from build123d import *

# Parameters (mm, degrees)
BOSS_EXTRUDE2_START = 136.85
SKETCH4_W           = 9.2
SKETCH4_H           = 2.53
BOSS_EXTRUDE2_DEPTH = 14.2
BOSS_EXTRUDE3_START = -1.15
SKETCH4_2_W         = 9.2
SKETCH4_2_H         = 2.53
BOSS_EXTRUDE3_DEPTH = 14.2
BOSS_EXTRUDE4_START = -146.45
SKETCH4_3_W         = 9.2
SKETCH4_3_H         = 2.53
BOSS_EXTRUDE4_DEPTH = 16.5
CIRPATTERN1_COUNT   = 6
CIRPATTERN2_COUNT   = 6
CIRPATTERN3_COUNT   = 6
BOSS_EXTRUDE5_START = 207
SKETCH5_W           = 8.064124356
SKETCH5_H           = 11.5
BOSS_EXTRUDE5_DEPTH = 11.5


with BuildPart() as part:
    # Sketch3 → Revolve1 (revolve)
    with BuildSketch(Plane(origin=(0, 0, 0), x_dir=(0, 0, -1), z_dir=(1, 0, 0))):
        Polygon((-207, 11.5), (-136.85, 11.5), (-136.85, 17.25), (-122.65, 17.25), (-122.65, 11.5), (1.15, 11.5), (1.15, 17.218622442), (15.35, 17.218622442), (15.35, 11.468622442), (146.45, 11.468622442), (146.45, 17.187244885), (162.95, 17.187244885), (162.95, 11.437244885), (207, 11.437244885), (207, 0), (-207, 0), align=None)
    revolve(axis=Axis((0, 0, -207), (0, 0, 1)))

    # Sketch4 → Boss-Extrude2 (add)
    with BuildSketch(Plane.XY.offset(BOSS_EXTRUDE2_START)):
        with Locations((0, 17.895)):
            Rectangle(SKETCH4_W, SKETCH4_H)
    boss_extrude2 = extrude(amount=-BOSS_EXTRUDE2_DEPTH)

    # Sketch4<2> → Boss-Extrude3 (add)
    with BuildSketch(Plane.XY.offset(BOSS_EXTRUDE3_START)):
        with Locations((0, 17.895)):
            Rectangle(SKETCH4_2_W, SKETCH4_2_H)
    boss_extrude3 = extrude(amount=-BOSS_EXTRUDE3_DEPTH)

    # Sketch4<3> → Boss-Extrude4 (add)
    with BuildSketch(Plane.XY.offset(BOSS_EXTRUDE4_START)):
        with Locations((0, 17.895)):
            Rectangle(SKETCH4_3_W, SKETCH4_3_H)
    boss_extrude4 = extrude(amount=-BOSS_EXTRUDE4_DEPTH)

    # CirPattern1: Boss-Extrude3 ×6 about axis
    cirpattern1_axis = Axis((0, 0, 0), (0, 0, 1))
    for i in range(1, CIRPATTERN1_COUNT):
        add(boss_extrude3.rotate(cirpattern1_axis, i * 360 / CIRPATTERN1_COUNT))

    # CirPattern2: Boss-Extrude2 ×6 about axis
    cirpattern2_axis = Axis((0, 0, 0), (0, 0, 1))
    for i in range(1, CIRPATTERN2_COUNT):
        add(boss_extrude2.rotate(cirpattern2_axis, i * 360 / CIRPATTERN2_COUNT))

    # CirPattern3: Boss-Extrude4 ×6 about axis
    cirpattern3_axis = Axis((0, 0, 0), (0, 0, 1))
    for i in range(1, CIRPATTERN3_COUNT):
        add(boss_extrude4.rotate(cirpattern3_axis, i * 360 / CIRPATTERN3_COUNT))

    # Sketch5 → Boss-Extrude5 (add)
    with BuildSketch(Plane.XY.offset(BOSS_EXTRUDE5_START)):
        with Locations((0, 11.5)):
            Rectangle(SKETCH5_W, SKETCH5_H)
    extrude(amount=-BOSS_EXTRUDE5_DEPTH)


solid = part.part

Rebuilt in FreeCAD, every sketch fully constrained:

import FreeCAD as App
import Part
import Sketcher
from FreeCAD import Vector
Q = App.Units.Quantity

doc = App.newDocument("Part")
params = doc.addObject("Spreadsheet::Sheet", "Params")
for row, (alias, value) in enumerate([
    ("sketch1_height", "414 mm"),
    ("sketch1_width", "11.5 mm"),
    ("sketch1_height2", "16.5 mm"),
    ("sketch1_height3", "131.1 mm"),
    ("sketch1_height4", "14.2 mm"),
    ("revolution_angle", "360 deg"),
    ("sketch2_width", "9.2 mm"),
    ("sketch2_height", "2.53 mm"),
    ("pad1_length", "14.2 mm"),
    ("sketch3_width", "9.2 mm"),
    ("sketch3_height", "2.53 mm"),
    ("pad2_length", "14.2 mm"),
    ("sketch4_width", "9.2 mm"),
    ("sketch4_height", "2.53 mm"),
    ("pad3_length", "16.5 mm"),
    ("sketch5_height", "11.5 mm"),
    ("pad4_length", "11.5 mm"),
], start=1):
    params.set(f"A{row}", alias)
    params.set(f"B{row}", "=" + value)
    params.setAlias(f"B{row}", alias)

body = doc.addObject("PartDesign::Body", "Body")

sketch1 = body.newObject("Sketcher::SketchObject", "Sketch")
sketch1.AttachmentSupport = (doc.getObject("YZ_Plane"), [""])
sketch1.MapMode = "FlatFace"
sketch1.addGeometry(Part.LineSegment(Vector(12, 137, 0), Vector(12, 207, 0)), False)
sketch1.addGeometry(Part.LineSegment(Vector(12, 207, 0), Vector(0, 207, 0)), False)
sketch1.addGeometry(Part.LineSegment(Vector(0, 207, 0), Vector(0, -207, 0)), False)
sketch1.addGeometry(Part.LineSegment(Vector(0, -207, 0), Vector(11, -207, 0)), False)
sketch1.addGeometry(Part.LineSegment(Vector(11, -207, 0), Vector(11, -163, 0)), False)
sketch1.addGeometry(Part.LineSegment(Vector(11, -163, 0), Vector(17, -163, 0)), False)
sketch1.addGeometry(Part.LineSegment(Vector(17, -163, 0), Vector(17, -146, 0)), False)
sketch1.addGeometry(Part.LineSegment(Vector(17, -146, 0), Vector(11, -146, 0)), False)
sketch1.addGeometry(Part.LineSegment(Vector(11, -146, 0), Vector(11, -15, 0)), False)
sketch1.addGeometry(Part.LineSegment(Vector(11, -15, 0), Vector(17, -15, 0)), False)
sketch1.addGeometry(Part.LineSegment(Vector(17, -15, 0), Vector(17, -1, 0)), False)
sketch1.addGeometry(Part.LineSegment(Vector(17, -1, 0), Vector(12, -1, 0)), False)
sketch1.addGeometry(Part.LineSegment(Vector(12, -1, 0), Vector(12, 123, 0)), False)
sketch1.addGeometry(Part.LineSegment(Vector(12, 123, 0), Vector(17, 123, 0)), False)
sketch1.addGeometry(Part.LineSegment(Vector(17, 123, 0), Vector(17, 137, 0)), False)
sketch1.addGeometry(Part.LineSegment(Vector(17, 137, 0), Vector(12, 137, 0)), False)
sketch1.addConstraint(Sketcher.Constraint("Coincident", 0, 2, 1, 1))
sketch1.addConstraint(Sketcher.Constraint("Coincident", 1, 2, 2, 1))
sketch1.addConstraint(Sketcher.Constraint("Coincident", 2, 2, 3, 1))
sketch1.addConstraint(Sketcher.Constraint("Coincident", 3, 2, 4, 1))
sketch1.addConstraint(Sketcher.Constraint("Coincident", 4, 2, 5, 1))
sketch1.addConstraint(Sketcher.Constraint("Coincident", 5, 2, 6, 1))
sketch1.addConstraint(Sketcher.Constraint("Coincident", 6, 2, 7, 1))
sketch1.addConstraint(Sketcher.Constraint("Coincident", 7, 2, 8, 1))
sketch1.addConstraint(Sketcher.Constraint("Coincident", 8, 2, 9, 1))
sketch1.addConstraint(Sketcher.Constraint("Coincident", 9, 2, 10, 1))
sketch1.addConstraint(Sketcher.Constraint("Coincident", 10, 2, 11, 1))
sketch1.addConstraint(Sketcher.Constraint("Coincident", 11, 2, 12, 1))
sketch1.addConstraint(Sketcher.Constraint("Coincident", 12, 2, 13, 1))
sketch1.addConstraint(Sketcher.Constraint("Coincident", 13, 2, 14, 1))
sketch1.addConstraint(Sketcher.Constraint("Coincident", 14, 2, 15, 1))
sketch1.addConstraint(Sketcher.Constraint("Coincident", 15, 2, 0, 1))
sketch1.addConstraint(Sketcher.Constraint("Vertical", 0))
sketch1.addConstraint(Sketcher.Constraint("Horizontal", 1))
sketch1.addConstraint(Sketcher.Constraint("Vertical", 2))
sketch1.addConstraint(Sketcher.Constraint("Horizontal", 3))
sketch1.addConstraint(Sketcher.Constraint("Vertical", 4))
sketch1.addConstraint(Sketcher.Constraint("Horizontal", 5))
sketch1.addConstraint(Sketcher.Constraint("Vertical", 6))
sketch1.addConstraint(Sketcher.Constraint("Horizontal", 7))
sketch1.addConstraint(Sketcher.Constraint("Vertical", 8))
sketch1.addConstraint(Sketcher.Constraint("Horizontal", 9))
sketch1.addConstraint(Sketcher.Constraint("Vertical", 10))
sketch1.addConstraint(Sketcher.Constraint("Horizontal", 11))
sketch1.addConstraint(Sketcher.Constraint("Vertical", 12))
sketch1.addConstraint(Sketcher.Constraint("Horizontal", 13))
sketch1.addConstraint(Sketcher.Constraint("Vertical", 14))
sketch1.addConstraint(Sketcher.Constraint("Horizontal", 15))
sketch1.addConstraint(Sketcher.Constraint("Symmetric", 1, 2, 2, 2, -1, 1))
sketch1.addConstraint(Sketcher.Constraint("Vertical", 0, 2, 11, 2))
sketch1.addConstraint(Sketcher.Constraint("Equal", 5, 9))
sketch1.addConstraint(Sketcher.Constraint("Equal", 7, 11))
sketch1.addConstraint(Sketcher.Constraint("Equal", 9, 13))
sketch1.addConstraint(Sketcher.Constraint("Equal", 10, 14))
sketch1.addConstraint(Sketcher.Constraint("DistanceY", 2, 2, 2, 1, Q("414 mm")))
sketch1.addConstraint(Sketcher.Constraint("DistanceX", 1, 2, 1, 1, Q("11.5 mm")))
sketch1.addConstraint(Sketcher.Constraint("DistanceY", 6, 1, 6, 2, Q("16.5 mm")))
sketch1.addConstraint(Sketcher.Constraint("DistanceY", 8, 1, 8, 2, Q("131.1 mm")))
sketch1.addConstraint(Sketcher.Constraint("DistanceY", 10, 1, 10, 2, Q("14.2 mm")))
sketch1.addConstraint(Sketcher.Constraint("DistanceY", 12, 1, 12, 2, Q("123.8 mm")))
sketch1.addConstraint(Sketcher.Constraint("DistanceX", 5, 1, 5, 2, Q("5.75 mm")))
sketch1.addConstraint(Sketcher.Constraint("DistanceY", 0, 1, 0, 2, Q("70.15 mm")))
sketch1.addConstraint(Sketcher.Constraint("DistanceX", 3, 1, 3, 2, Q("11.437245 mm")))
sketch1.setExpression("Constraints[38]", "Params.sketch1_height")
sketch1.setExpression("Constraints[39]", "Params.sketch1_width")
sketch1.setExpression("Constraints[40]", "Params.sketch1_height2")
sketch1.setExpression("Constraints[41]", "Params.sketch1_height3")
sketch1.setExpression("Constraints[42]", "Params.sketch1_height4")
revolution = body.newObject("PartDesign::Revolution", "Revolution")
revolution.Profile = sketch1
revolution.ReferenceAxis = (sketch1, ["V_Axis"])
revolution.setExpression("Angle", "Params.revolution_angle")

sketch2 = body.newObject("Sketcher::SketchObject", "Sketch001")
sketch2.AttachmentSupport = (doc.getObject("XY_Plane"), [""])
sketch2.MapMode = "FlatFace"
sketch2.AttachmentOffset = App.Placement(Vector(0, 0, 136.85), App.Rotation())
sketch2.addGeometry(Part.LineSegment(Vector(-4.6, 19.2, 0), Vector(-4.6, 16.6, 0)), False)
sketch2.addGeometry(Part.LineSegment(Vector(-4.6, 16.6, 0), Vector(4.6, 16.6, 0)), False)
sketch2.addGeometry(Part.LineSegment(Vector(4.6, 16.6, 0), Vector(4.6, 19.2, 0)), False)
sketch2.addGeometry(Part.LineSegment(Vector(4.6, 19.2, 0), Vector(-4.6, 19.2, 0)), False)
sketch2.addConstraint(Sketcher.Constraint("Coincident", 0, 2, 1, 1))
sketch2.addConstraint(Sketcher.Constraint("Coincident", 1, 2, 2, 1))
sketch2.addConstraint(Sketcher.Constraint("Coincident", 2, 2, 3, 1))
sketch2.addConstraint(Sketcher.Constraint("Coincident", 3, 2, 0, 1))
sketch2.addConstraint(Sketcher.Constraint("Vertical", 0))
sketch2.addConstraint(Sketcher.Constraint("Horizontal", 1))
sketch2.addConstraint(Sketcher.Constraint("Vertical", 2))
sketch2.addConstraint(Sketcher.Constraint("Horizontal", 3))
sketch2.addConstraint(Sketcher.Constraint("DistanceX", 1, 1, 1, 2, Q("9.2 mm")))
sketch2.addConstraint(Sketcher.Constraint("DistanceY", 0, 2, 0, 1, Q("2.53 mm")))
sketch2.addConstraint(Sketcher.Constraint("DistanceX", 0, 2, -1, 1, Q("4.6 mm")))
sketch2.addConstraint(Sketcher.Constraint("DistanceY", -1, 1, 0, 2, Q("16.63 mm")))
sketch2.setExpression("Constraints[8]", "Params.sketch2_width")
sketch2.setExpression("Constraints[9]", "Params.sketch2_height")
pad1 = body.newObject("PartDesign::Pad", "Pad")
pad1.Profile = sketch2
pad1.setExpression("Length", "Params.pad1_length")
pad1.Reversed = True

sketch3 = body.newObject("Sketcher::SketchObject", "Sketch002")
sketch3.AttachmentSupport = (doc.getObject("XY_Plane"), [""])
sketch3.MapMode = "FlatFace"
sketch3.AttachmentOffset = App.Placement(Vector(0, 0, -1.15), App.Rotation())
sketch3.addGeometry(Part.LineSegment(Vector(-4.6, 19.2, 0), Vector(-4.6, 16.6, 0)), False)
sketch3.addGeometry(Part.LineSegment(Vector(-4.6, 16.6, 0), Vector(4.6, 16.6, 0)), False)
sketch3.addGeometry(Part.LineSegment(Vector(4.6, 16.6, 0), Vector(4.6, 19.2, 0)), False)
sketch3.addGeometry(Part.LineSegment(Vector(4.6, 19.2, 0), Vector(-4.6, 19.2, 0)), False)
sketch3.addConstraint(Sketcher.Constraint("Coincident", 0, 2, 1, 1))
sketch3.addConstraint(Sketcher.Constraint("Coincident", 1, 2, 2, 1))
sketch3.addConstraint(Sketcher.Constraint("Coincident", 2, 2, 3, 1))
sketch3.addConstraint(Sketcher.Constraint("Coincident", 3, 2, 0, 1))
sketch3.addConstraint(Sketcher.Constraint("Vertical", 0))
sketch3.addConstraint(Sketcher.Constraint("Horizontal", 1))
sketch3.addConstraint(Sketcher.Constraint("Vertical", 2))
sketch3.addConstraint(Sketcher.Constraint("Horizontal", 3))
sketch3.addConstraint(Sketcher.Constraint("DistanceX", 1, 1, 1, 2, Q("9.2 mm")))
sketch3.addConstraint(Sketcher.Constraint("DistanceY", 0, 2, 0, 1, Q("2.53 mm")))
sketch3.addConstraint(Sketcher.Constraint("DistanceX", 0, 2, -1, 1, Q("4.6 mm")))
sketch3.addConstraint(Sketcher.Constraint("DistanceY", -1, 1, 0, 2, Q("16.63 mm")))
sketch3.setExpression("Constraints[8]", "Params.sketch3_width")
sketch3.setExpression("Constraints[9]", "Params.sketch3_height")
pad2 = body.newObject("PartDesign::Pad", "Pad001")
pad2.Profile = sketch3
pad2.setExpression("Length", "Params.pad2_length")
pad2.Reversed = True

sketch4 = body.newObject("Sketcher::SketchObject", "Sketch003")
sketch4.AttachmentSupport = (doc.getObject("XY_Plane"), [""])
sketch4.MapMode = "FlatFace"
sketch4.AttachmentOffset = App.Placement(Vector(0, 0, -146.45), App.Rotation())
sketch4.addGeometry(Part.LineSegment(Vector(-4.6, 19.2, 0), Vector(-4.6, 16.6, 0)), False)
sketch4.addGeometry(Part.LineSegment(Vector(-4.6, 16.6, 0), Vector(4.6, 16.6, 0)), False)
sketch4.addGeometry(Part.LineSegment(Vector(4.6, 16.6, 0), Vector(4.6, 19.2, 0)), False)
sketch4.addGeometry(Part.LineSegment(Vector(4.6, 19.2, 0), Vector(-4.6, 19.2, 0)), False)
sketch4.addConstraint(Sketcher.Constraint("Coincident", 0, 2, 1, 1))
sketch4.addConstraint(Sketcher.Constraint("Coincident", 1, 2, 2, 1))
sketch4.addConstraint(Sketcher.Constraint("Coincident", 2, 2, 3, 1))
sketch4.addConstraint(Sketcher.Constraint("Coincident", 3, 2, 0, 1))
sketch4.addConstraint(Sketcher.Constraint("Vertical", 0))
sketch4.addConstraint(Sketcher.Constraint("Horizontal", 1))
sketch4.addConstraint(Sketcher.Constraint("Vertical", 2))
sketch4.addConstraint(Sketcher.Constraint("Horizontal", 3))
sketch4.addConstraint(Sketcher.Constraint("DistanceX", 1, 1, 1, 2, Q("9.2 mm")))
sketch4.addConstraint(Sketcher.Constraint("DistanceY", 0, 2, 0, 1, Q("2.53 mm")))
sketch4.addConstraint(Sketcher.Constraint("DistanceX", 0, 2, -1, 1, Q("4.6 mm")))
sketch4.addConstraint(Sketcher.Constraint("DistanceY", -1, 1, 0, 2, Q("16.63 mm")))
sketch4.setExpression("Constraints[8]", "Params.sketch4_width")
sketch4.setExpression("Constraints[9]", "Params.sketch4_height")
pad3 = body.newObject("PartDesign::Pad", "Pad002")
pad3.Profile = sketch4
pad3.setExpression("Length", "Params.pad3_length")
pad3.Reversed = True
doc.recompute()

polarpattern = body.newObject("PartDesign::PolarPattern", "PolarPattern")
polarpattern.Originals = [pad2]
polarpattern.Axis = (doc.getObject("Z_Axis"), [""])
polarpattern.Angle = 360
polarpattern.Occurrences = 6
body.Tip = polarpattern
doc.recompute()

polarpattern2 = body.newObject("PartDesign::PolarPattern", "PolarPattern001")
polarpattern2.Originals = [pad1]
polarpattern2.Axis = (doc.getObject("Z_Axis"), [""])
polarpattern2.Angle = 360
polarpattern2.Occurrences = 6
body.Tip = polarpattern2
doc.recompute()

polarpattern3 = body.newObject("PartDesign::PolarPattern", "PolarPattern002")
polarpattern3.Originals = [pad3]
polarpattern3.Axis = (doc.getObject("Z_Axis"), [""])
polarpattern3.Angle = 360
polarpattern3.Occurrences = 6
body.Tip = polarpattern3

sketch5 = body.newObject("Sketcher::SketchObject", "Sketch004")
sketch5.AttachmentSupport = (doc.getObject("XY_Plane"), [""])
sketch5.MapMode = "FlatFace"
sketch5.AttachmentOffset = App.Placement(Vector(0, 0, 207), App.Rotation())
sketch5.addGeometry(Part.LineSegment(Vector(-4, 17, 0), Vector(-4, 6, 0)), False)
sketch5.addGeometry(Part.LineSegment(Vector(-4, 6, 0), Vector(4, 6, 0)), False)
sketch5.addGeometry(Part.LineSegment(Vector(4, 6, 0), Vector(4, 17, 0)), False)
sketch5.addGeometry(Part.LineSegment(Vector(4, 17, 0), Vector(-4, 17, 0)), False)
sketch5.addConstraint(Sketcher.Constraint("Coincident", 0, 2, 1, 1))
sketch5.addConstraint(Sketcher.Constraint("Coincident", 1, 2, 2, 1))
sketch5.addConstraint(Sketcher.Constraint("Coincident", 2, 2, 3, 1))
sketch5.addConstraint(Sketcher.Constraint("Coincident", 3, 2, 0, 1))
sketch5.addConstraint(Sketcher.Constraint("Vertical", 0))
sketch5.addConstraint(Sketcher.Constraint("Horizontal", 1))
sketch5.addConstraint(Sketcher.Constraint("Vertical", 2))
sketch5.addConstraint(Sketcher.Constraint("Horizontal", 3))
sketch5.addConstraint(Sketcher.Constraint("DistanceY", 0, 2, 0, 1, Q("11.5 mm")))
sketch5.addConstraint(Sketcher.Constraint("DistanceY", -1, 1, 0, 2, Q("5.75 mm")))
sketch5.addConstraint(Sketcher.Constraint("DistanceX", 1, 1, 1, 2, Q("8.064124 mm")))
sketch5.addConstraint(Sketcher.Constraint("DistanceX", 0, 2, -1, 1, Q("4.032062 mm")))
sketch5.setExpression("Constraints[8]", "Params.sketch5_height")
pad4 = body.newObject("PartDesign::Pad", "Pad003")
pad4.Profile = sketch5
pad4.setExpression("Length", "Params.pad4_length")
pad4.Reversed = True

doc.recompute()
